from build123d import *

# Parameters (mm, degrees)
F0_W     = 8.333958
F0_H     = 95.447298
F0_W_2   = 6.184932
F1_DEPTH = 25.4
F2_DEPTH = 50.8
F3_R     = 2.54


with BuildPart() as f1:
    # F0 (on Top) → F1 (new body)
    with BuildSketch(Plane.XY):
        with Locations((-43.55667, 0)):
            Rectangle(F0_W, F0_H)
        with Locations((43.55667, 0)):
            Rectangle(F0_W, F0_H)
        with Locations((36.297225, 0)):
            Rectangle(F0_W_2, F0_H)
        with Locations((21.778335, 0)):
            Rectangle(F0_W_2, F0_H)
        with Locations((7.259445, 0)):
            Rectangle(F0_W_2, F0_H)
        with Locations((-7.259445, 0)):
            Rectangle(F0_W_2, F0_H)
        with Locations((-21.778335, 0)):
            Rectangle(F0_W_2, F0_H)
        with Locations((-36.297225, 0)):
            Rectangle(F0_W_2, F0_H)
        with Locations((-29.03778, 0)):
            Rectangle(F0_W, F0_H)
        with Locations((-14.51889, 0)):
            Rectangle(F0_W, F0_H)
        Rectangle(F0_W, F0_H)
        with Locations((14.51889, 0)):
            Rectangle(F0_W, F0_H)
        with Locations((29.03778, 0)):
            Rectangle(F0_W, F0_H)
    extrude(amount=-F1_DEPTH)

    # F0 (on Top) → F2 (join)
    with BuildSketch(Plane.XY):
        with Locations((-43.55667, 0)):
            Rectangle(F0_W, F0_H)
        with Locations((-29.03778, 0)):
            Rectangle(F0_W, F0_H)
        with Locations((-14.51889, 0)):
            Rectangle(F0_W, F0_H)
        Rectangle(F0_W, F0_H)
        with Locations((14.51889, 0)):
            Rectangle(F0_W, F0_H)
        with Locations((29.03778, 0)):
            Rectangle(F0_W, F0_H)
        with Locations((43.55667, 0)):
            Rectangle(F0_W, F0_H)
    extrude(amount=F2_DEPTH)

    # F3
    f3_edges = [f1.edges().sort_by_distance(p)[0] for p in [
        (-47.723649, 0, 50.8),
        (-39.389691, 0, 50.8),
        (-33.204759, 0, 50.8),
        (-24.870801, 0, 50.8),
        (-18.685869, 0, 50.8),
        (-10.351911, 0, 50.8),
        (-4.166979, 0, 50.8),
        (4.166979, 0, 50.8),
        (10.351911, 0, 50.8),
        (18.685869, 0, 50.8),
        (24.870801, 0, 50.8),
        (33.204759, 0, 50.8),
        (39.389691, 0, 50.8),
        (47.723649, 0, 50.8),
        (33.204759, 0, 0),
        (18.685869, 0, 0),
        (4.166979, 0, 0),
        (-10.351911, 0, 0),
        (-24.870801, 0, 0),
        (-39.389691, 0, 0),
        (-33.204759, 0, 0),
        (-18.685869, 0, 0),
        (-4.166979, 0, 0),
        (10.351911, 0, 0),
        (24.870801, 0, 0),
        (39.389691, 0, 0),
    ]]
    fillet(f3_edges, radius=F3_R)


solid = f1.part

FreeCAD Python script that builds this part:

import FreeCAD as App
import Part
import Sketcher
Q = App.Units.Quantity


def edges_at(feature, points):
    """Names of the edges that pass closest to the given points."""
    edges = feature.Shape.Edges
    near = lambda p: min(range(len(edges)), key=lambda i: edges[i].distToShape(Part.Vertex(*p))[0])
    return sorted({f"Edge{near(p) + 1}" for p in points})

doc = App.newDocument("Part")
body = doc.addObject("PartDesign::Body", "Body")

# Sketch on XY plane
sketch1 = body.newObject("Sketcher::SketchObject", "Sketch")
sketch1.AttachmentSupport = (doc.getObject("XY_Plane"), [""])
sketch1.MapMode = "FlatFace"
sketch1.addGeometry(Part.LineSegment(App.Vector(-48, 48, 0), App.Vector(-48, -48, 0)), False)
sketch1.addGeometry(Part.LineSegment(App.Vector(-48, -48, 0), App.Vector(48, -48, 0)), False)
sketch1.addGeometry(Part.LineSegment(App.Vector(48, -48, 0), App.Vector(48, 48, 0)), False)
sketch1.addGeometry(Part.LineSegment(App.Vector(48, 48, 0), App.Vector(-48, 48, 0)), False)
sketch1.addConstraint(Sketcher.Constraint("Coincident", 0, 2, 1, 1))
sketch1.addConstraint(Sketcher.Constraint("Coincident", 1, 2, 2, 1))
sketch1.addConstraint(Sketcher.Constraint("Coincident", 2, 2, 3, 1))
sketch1.addConstraint(Sketcher.Constraint("Coincident", 3, 2, 0, 1))
sketch1.addConstraint(Sketcher.Constraint("Vertical", 0))
sketch1.addConstraint(Sketcher.Constraint("Horizontal", 1))
sketch1.addConstraint(Sketcher.Constraint("Vertical", 2))
sketch1.addConstraint(Sketcher.Constraint("Horizontal", 3))
sketch1.addConstraint(Sketcher.Constraint("Symmetric", 0, 2, 2, 2, -1, 1))
sketch1.addConstraint(Sketcher.Constraint("Equal", 3, 0))
sketch1.addConstraint(Sketcher.Constraint("DistanceX", 1, 1, 1, 2, 95.447298))
pad1 = body.newObject("PartDesign::Pad", "Pad")
pad1.Profile = sketch1
pad1.Length = Q("1 in")
pad1.Reversed = True

# Sketch on XY plane
sketch2 = body.newObject("Sketcher::SketchObject", "Sketch001")
sketch2.AttachmentSupport = (doc.getObject("XY_Plane"), [""])
sketch2.MapMode = "FlatFace"
sketch2.addGeometry(Part.LineSegment(App.Vector(-48, 48, 0), App.Vector(-48, -48, 0)), False)
sketch2.addGeometry(Part.LineSegment(App.Vector(-48, -48, 0), App.Vector(-39, -48, 0)), False)
sketch2.addGeometry(Part.LineSegment(App.Vector(-39, -48, 0), App.Vector(-39, 48, 0)), False)
sketch2.addGeometry(Part.LineSegment(App.Vector(-39, 48, 0), App.Vector(-48, 48, 0)), False)
sketch2.addGeometry(Part.LineSegment(App.Vector(-33, 48, 0), App.Vector(-33, -48, 0)), False)
sketch2.addGeometry(Part.LineSegment(App.Vector(-33, -48, 0), App.Vector(-25, -48, 0)), False)
sketch2.addGeometry(Part.LineSegment(App.Vector(-25, -48, 0), App.Vector(-25, 48, 0)), False)
sketch2.addGeometry(Part.LineSegment(App.Vector(-25, 48, 0), App.Vector(-33, 48, 0)), False)
sketch2.addGeometry(Part.LineSegment(App.Vector(-19, 48, 0), App.Vector(-19, -48, 0)), False)
sketch2.addGeometry(Part.LineSegment(App.Vector(-19, -48, 0), App.Vector(-10, -48, 0)), False)
sketch2.addGeometry(Part.LineSegment(App.Vector(-10, -48, 0), App.Vector(-10, 48, 0)), False)
sketch2.addGeometry(Part.LineSegment(App.Vector(-10, 48, 0), App.Vector(-19, 48, 0)), False)
sketch2.addGeometry(Part.LineSegment(App.Vector(-4, 48, 0), App.Vector(-4, -48, 0)), False)
sketch2.addGeometry(Part.LineSegment(App.Vector(-4, -48, 0), App.Vector(4, -48, 0)), False)
sketch2.addGeometry(Part.LineSegment(App.Vector(4, -48, 0), App.Vector(4, 48, 0)), False)
sketch2.addGeometry(Part.LineSegment(App.Vector(4, 48, 0), App.Vector(-4, 48, 0)), False)
sketch2.addGeometry(Part.LineSegment(App.Vector(10, 48, 0), App.Vector(10, -48, 0)), False)
sketch2.addGeometry(Part.LineSegment(App.Vector(10, -48, 0), App.Vector(19, -48, 0)), False)
sketch2.addGeometry(Part.LineSegment(App.Vector(19, -48, 0), App.Vector(19, 48, 0)), False)
sketch2.addGeometry(Part.LineSegment(App.Vector(19, 48, 0), App.Vector(10, 48, 0)), False)
sketch2.addGeometry(Part.LineSegment(App.Vector(25, 48, 0), App.Vector(25, -48, 0)), False)
sketch2.addGeometry(Part.LineSegment(App.Vector(25, -48, 0), App.Vector(33, -48, 0)), False)
sketch2.addGeometry(Part.LineSegment(App.Vector(33, -48, 0), App.Vector(33, 48, 0)), False)
sketch2.addGeometry(Part.LineSegment(App.Vector(33, 48, 0), App.Vector(25, 48, 0)), False)
sketch2.addGeometry(Part.LineSegment(App.Vector(39, 48, 0), App.Vector(39, -48, 0)), False)
sketch2.addGeometry(Part.LineSegment(App.Vector(39, -48, 0), App.Vector(48, -48, 0)), False)
sketch2.addGeometry(Part.LineSegment(App.Vector(48, -48, 0), App.Vector(48, 48, 0)), False)
sketch2.addGeometry(Part.LineSegment(App.Vector(48, 48, 0), App.Vector(39, 48, 0)), False)
sketch2.addConstraint(Sketcher.Constraint("Coincident", 0, 2, 1, 1))
sketch2.addConstraint(Sketcher.Constraint("Coincident", 1, 2, 2, 1))
sketch2.addConstraint(Sketcher.Constraint("Coincident", 2, 2, 3, 1))
sketch2.addConstraint(Sketcher.Constraint("Coincident", 3, 2, 0, 1))
sketch2.addConstraint(Sketcher.Constraint("Coincident", 4, 2, 5, 1))
sketch2.addConstraint(Sketcher.Constraint("Coincident", 5, 2, 6, 1))
sketch2.addConstraint(Sketcher.Constraint("Coincident", 6, 2, 7, 1))
sketch2.addConstraint(Sketcher.Constraint("Coincident", 7, 2, 4, 1))
sketch2.addConstraint(Sketcher.Constraint("Coincident", 8, 2, 9, 1))
sketch2.addConstraint(Sketcher.Constraint("Coincident", 9, 2, 10, 1))
sketch2.addConstraint(Sketcher.Constraint("Coincident", 10, 2, 11, 1))
sketch2.addConstraint(Sketcher.Constraint("Coincident", 11, 2, 8, 1))
sketch2.addConstraint(Sketcher.Constraint("Coincident", 12, 2, 13, 1))
sketch2.addConstraint(Sketcher.Constraint("Coincident", 13, 2, 14, 1))
sketch2.addConstraint(Sketcher.Constraint("Coincident", 14, 2, 15, 1))
sketch2.addConstraint(Sketcher.Constraint("Coincident", 15, 2, 12, 1))
sketch2.addConstraint(Sketcher.Constraint("Coincident", 16, 2, 17, 1))
sketch2.addConstraint(Sketcher.Constraint("Coincident", 17, 2, 18, 1))
sketch2.addConstraint(Sketcher.Constraint("Coincident", 18, 2, 19, 1))
sketch2.addConstraint(Sketcher.Constraint("Coincident", 19, 2, 16, 1))
sketch2.addConstraint(Sketcher.Constraint("Coincident", 20, 2, 21, 1))
sketch2.addConstraint(Sketcher.Constraint("Coincident", 21, 2, 22, 1))
sketch2.addConstraint(Sketcher.Constraint("Coincident", 22, 2, 23, 1))
sketch2.addConstraint(Sketcher.Constraint("Coincident", 23, 2, 20, 1))
sketch2.addConstraint(Sketcher.Constraint("Coincident", 24, 2, 25, 1))
sketch2.addConstraint(Sketcher.Constraint("Coincident", 25, 2, 26, 1))
sketch2.addConstraint(Sketcher.Constraint("Coincident", 26, 2, 27, 1))
sketch2.addConstraint(Sketcher.Constraint("Coincident", 27, 2, 24, 1))
sketch2.addConstraint(Sketcher.Constraint("Vertical", 0))
sketch2.addConstraint(Sketcher.Constraint("Horizontal", 1))
sketch2.addConstraint(Sketcher.Constraint("Vertical", 2))
sketch2.addConstraint(Sketcher.Constraint("Horizontal", 3))
sketch2.addConstraint(Sketcher.Constraint("Vertical", 4))
sketch2.addConstraint(Sketcher.Constraint("Horizontal", 5))
sketch2.addConstraint(Sketcher.Constraint("Vertical", 6))
sketch2.addConstraint(Sketcher.Constraint("Horizontal", 7))
sketch2.addConstraint(Sketcher.Constraint("Vertical", 8))
sketch2.addConstraint(Sketcher.Constraint("Horizontal", 9))
sketch2.addConstraint(Sketcher.Constraint("Vertical", 10))
sketch2.addConstraint(Sketcher.Constraint("Horizontal", 11))
sketch2.addConstraint(Sketcher.Constraint("Vertical", 12))
sketch2.addConstraint(Sketcher.Constraint("Horizontal", 13))
sketch2.addConstraint(Sketcher.Constraint("Vertical", 14))
sketch2.addConstraint(Sketcher.Constraint("Horizontal", 15))
sketch2.addConstraint(Sketcher.Constraint("Vertical", 16))
sketch2.addConstraint(Sketcher.Constraint("Horizontal", 17))
sketch2.addConstraint(Sketcher.Constraint("Vertical", 18))
sketch2.addConstraint(Sketcher.Constraint("Horizontal", 19))
sketch2.addConstraint(Sketcher.Constraint("Vertical", 20))
sketch2.addConstraint(Sketcher.Constraint("Horizontal", 21))
sketch2.addConstraint(Sketcher.Constraint("Vertical", 22))
sketch2.addConstraint(Sketcher.Constraint("Horizontal", 23))
sketch2.addConstraint(Sketcher.Constraint("Vertical", 24))
sketch2.addConstraint(Sketcher.Constraint("Horizontal", 25))
sketch2.addConstraint(Sketcher.Constraint("Vertical", 26))
sketch2.addConstraint(Sketcher.Constraint("Horizontal", 27))
sketch2.addConstraint(Sketcher.Constraint("Symmetric", 12, 2, 14, 2, -1, 1))
sketch2.addConstraint(Sketcher.Constraint("Symmetric", 10, 2, 16, 2, -1, 1))
sketch2.addConstraint(Sketcher.Constraint("Symmetric", 8, 2, 18, 2, -1, 1))
sketch2.addConstraint(Sketcher.Constraint("Symmetric", 6, 2, 20, 2, -1, 1))
sketch2.addConstraint(Sketcher.Constraint("Symmetric", 4, 2, 22, 2, -1, 1))
sketch2.addConstraint(Sketcher.Constraint("Symmetric", 2, 2, 24, 2, -1, 1))
sketch2.addConstraint(Sketcher.Constraint("Symmetric", 0, 2, 26, 2, -1, 1))
sketch2.addConstraint(Sketcher.Constraint("Horizontal", 1, 2, 4, 2))
sketch2.addConstraint(Sketcher.Constraint("Horizontal", 3, 2, 6, 2))
sketch2.addConstraint(Sketcher.Constraint("Horizontal", 5, 2, 8, 2))
sketch2.addConstraint(Sketcher.Constraint("Horizontal", 7, 2, 10, 2))
sketch2.addConstraint(Sketcher.Constraint("Horizontal", 9, 2, 12, 2))
sketch2.addConstraint(Sketcher.Constraint("Horizontal", 11, 2, 14, 2))
sketch2.addConstraint(Sketcher.Constraint("Equal", 3, 5))
sketch2.addConstraint(Sketcher.Constraint("Equal", 7, 9))
sketch2.addConstraint(Sketcher.Constraint("Equal", 11, 13))
sketch2.addConstraint(Sketcher.Constraint("DistanceY", 0, 2, 0, 1, 95.447298))
sketch2.addConstraint(Sketcher.Constraint("DistanceX", 1, 1, 1, 2, 8.333958))
sketch2.addConstraint(Sketcher.Constraint("DistanceX", 5, 2, -1, 1, 24.870801))
sketch2.addConstraint(Sketcher.Constraint("DistanceX", 0, 2, -1, 1, 47.723649))
sketch2.addConstraint(Sketcher.Constraint("DistanceX", 8, 2, -1, 1, 18.685869))
pad2 = body.newObject("PartDesign::Pad", "Pad001")
pad2.Profile = sketch2
pad2.Length = Q("2 in")
doc.recompute()

fillet = body.newObject("PartDesign::Fillet", "Fillet")
fillet.Base = (pad2, edges_at(pad2, [
    (-47.724, 0, 50.8),
    (-39.39, 0, 50.8),
    (-33.205, 0, 50.8),
    (-24.871, 0, 50.8),
    (-18.686, 0, 50.8),
    (-10.352, 0, 50.8),
    (-4.167, 0, 50.8),
    (4.167, 0, 50.8),
    (10.352, 0, 50.8),
    (18.686, 0, 50.8),
    (24.871, 0, 50.8),
    (33.205, 0, 50.8),
    (39.39, 0, 50.8),
    (47.724, 0, 50.8),
    (33.205, 0, 0),
    (18.686, 0, 0),
    (4.167, 0, 0),
    (-10.352, 0, 0),
    (-24.871, 0, 0),
    (-39.39, 0, 0),
    (-33.205, 0, 0),
    (-18.686, 0, 0),
    (-4.167, 0, 0),
    (10.352, 0, 0),
    (24.871, 0, 0),
    (39.39, 0, 0),
]))
fillet.Radius = Q("0.1 in")

doc.recompute()
